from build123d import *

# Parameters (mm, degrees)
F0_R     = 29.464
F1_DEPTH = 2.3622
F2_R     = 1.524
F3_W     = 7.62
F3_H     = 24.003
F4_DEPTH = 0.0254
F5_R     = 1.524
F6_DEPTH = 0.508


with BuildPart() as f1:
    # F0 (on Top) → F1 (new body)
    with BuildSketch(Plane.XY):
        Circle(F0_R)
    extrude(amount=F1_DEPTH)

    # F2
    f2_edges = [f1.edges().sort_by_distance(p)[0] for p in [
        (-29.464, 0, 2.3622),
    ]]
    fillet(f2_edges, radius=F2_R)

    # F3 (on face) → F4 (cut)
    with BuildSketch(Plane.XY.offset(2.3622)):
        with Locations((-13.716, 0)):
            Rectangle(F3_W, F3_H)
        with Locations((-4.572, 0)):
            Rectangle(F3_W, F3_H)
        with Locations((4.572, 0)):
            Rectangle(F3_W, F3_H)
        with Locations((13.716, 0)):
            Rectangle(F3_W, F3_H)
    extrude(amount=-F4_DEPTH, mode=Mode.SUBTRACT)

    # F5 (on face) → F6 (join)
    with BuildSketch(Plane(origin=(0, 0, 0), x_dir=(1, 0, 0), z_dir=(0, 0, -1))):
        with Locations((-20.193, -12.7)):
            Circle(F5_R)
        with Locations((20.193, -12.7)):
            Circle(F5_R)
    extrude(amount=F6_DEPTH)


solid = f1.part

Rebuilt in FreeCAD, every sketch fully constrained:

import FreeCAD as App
import Part
import Sketcher
from FreeCAD import Vector
Q = App.Units.Quantity


def edges_at(feature, points):
    """Names of the edges that pass closest to the given points."""
    edges = feature.Shape.Edges
    near = lambda p: min(range(len(edges)), key=lambda i: edges[i].distToShape(Part.Vertex(*p))[0])
    return sorted({f"Edge{near(p) + 1}" for p in points})


def add_polygon(sketch, points):
    """Adds a closed chain of lines whose ends are joined by coincident constraints."""
    first, n = sketch.GeometryCount, len(points)
    for a, b in zip(points, points[1:] + points[:1]):
        sketch.addGeometry(Part.LineSegment(App.Vector(*a, 0), App.Vector(*b, 0)), False)
    for i in range(n):
        sketch.addConstraint(Sketcher.Constraint("Coincident", first + i, 2, first + (i + 1) % n, 1))

doc = App.newDocument("Part")
body = doc.addObject("PartDesign::Body", "Body")

# Sketch on XY plane
sketch1 = doc.addObject("Sketcher::SketchObject", "Sketch")
body.addObject(sketch1)
sketch1.AttachmentSupport = (doc.XY_Plane, [""])
sketch1.MapMode = "FlatFace"
sketch1.addGeometry(Part.Circle(Vector(0, 0, 0), Vector(0, 0, 1), 29.464), False)
sketch1.addConstraint([
    Sketcher.Constraint("Coincident", 0, 3, -1, 1),
    Sketcher.Constraint("Diameter", 0, Q("2.32 in")),
])
pad1 = doc.addObject("PartDesign::Pad", "Pad")
body.addObject(pad1)
pad1.Profile = sketch1
pad1.Length = Q("0.093 in")
doc.recompute()

fillet = doc.addObject("PartDesign::Fillet", "Fillet")
body.addObject(fillet)
fillet.Base = (pad1, edges_at(pad1, [(-29.464, 0, 2.362)]))
fillet.Radius = Q("0.06 in")

# Sketch on XY plane
sketch2 = doc.addObject("Sketcher::SketchObject", "Sketch001")
body.addObject(sketch2)
sketch2.AttachmentSupport = (doc.XY_Plane, [""])
sketch2.MapMode = "FlatFace"
sketch2.AttachmentOffset = App.Placement(Vector(0, 0, 0.093 * 25.4), App.Rotation())
add_polygon(sketch2, [(-17.526, 12.0015), (-17.526, -12.0015), (-9.906, -12.0015), (-9.906, 12.0015)])  # lines 0-3
add_polygon(sketch2, [(-8.382, 12.0015), (-8.382, -12.0015), (-0.762, -12.0015), (-0.762, 12.0015)])  # lines 4-7
add_polygon(sketch2, [(0.762, 12.0015), (0.762, -12.0015), (8.382, -12.0015), (8.382, 12.0015)])  # lines 8-11
add_polygon(sketch2, [(9.906, 12.0015), (9.906, -12.0015), (17.526, -12.0015), (17.526, 12.0015)])  # lines 12-15
sketch2.addConstraint([
    Sketcher.Constraint("Vertical", 0),
    Sketcher.Constraint("Horizontal", 1),
    Sketcher.Constraint("Vertical", 2),
    Sketcher.Constraint("Horizontal", 3),
    Sketcher.Constraint("Vertical", 4),
    Sketcher.Constraint("Horizontal", 5),
    Sketcher.Constraint("Vertical", 6),
    Sketcher.Constraint("Horizontal", 7),
    Sketcher.Constraint("Vertical", 8),
    Sketcher.Constraint("Horizontal", 9),
    Sketcher.Constraint("Vertical", 10),
    Sketcher.Constraint("Horizontal", 11),
    Sketcher.Constraint("Vertical", 12),
    Sketcher.Constraint("Horizontal", 13),
    Sketcher.Constraint("Vertical", 14),
    Sketcher.Constraint("Horizontal", 15),
    Sketcher.Constraint("Symmetric", 6, 2, 8, 2, -1, 1),
    Sketcher.Constraint("Symmetric", 4, 2, 10, 2, -1, 1),
    Sketcher.Constraint("Symmetric", 2, 2, 12, 2, -1, 1),
    Sketcher.Constraint("Symmetric", 0, 2, 14, 2, -1, 1),
    Sketcher.Constraint("Horizontal", 1, 2, 4, 2),
    Sketcher.Constraint("Horizontal", 3, 2, 6, 2),
    Sketcher.Constraint("Horizontal", 5, 2, 8, 2),
    Sketcher.Constraint("Equal", 3, 5),
    Sketcher.Constraint("DistanceX", 1, 1, 1, 2, Q("0.3 in")),
    Sketcher.Constraint("DistanceY", 0, 2, 0, 1, Q("0.945 in")),
    Sketcher.Constraint("DistanceX", 0, 2, -1, 1, Q("0.69 in")),
    Sketcher.Constraint("DistanceX", 4, 2, -1, 1, Q("0.33 in")),
])
pocket1 = doc.addObject("PartDesign::Pocket", "Pocket")
body.addObject(pocket1)
pocket1.Profile = sketch2
pocket1.Length = Q("0.001 in")

# Sketch on XY plane
sketch3 = doc.addObject("Sketcher::SketchObject", "Sketch002")
body.addObject(sketch3)
sketch3.AttachmentSupport = (doc.XY_Plane, [""])
sketch3.MapMode = "FlatFace"
sketch3.addGeometry([
    Part.Circle(Vector(-20.193, 12.7, 0), Vector(0, 0, 1), 1.524),
    Part.Circle(Vector(20.193, 12.7, 0), Vector(0, 0, 1), 1.524),
], False)
sketch3.addConstraint([
    Sketcher.Constraint("Equal", 0, 1),
    Sketcher.Constraint("Symmetric", 0, 3, 1, 3, -2),
    Sketcher.Constraint("Diameter", 0, Q("0.12 in")),
    Sketcher.Constraint("DistanceY", -1, 1, 0, 3, Q("0.5 in")),
    Sketcher.Constraint("DistanceX", 0, 3, 1, 3, Q("1.59 in")),
])
pad2 = doc.addObject("PartDesign::Pad", "Pad001")
body.addObject(pad2)
pad2.Profile = sketch3
pad2.Length = Q("0.02 in")
pad2.Reversed = True

doc.recompute()
